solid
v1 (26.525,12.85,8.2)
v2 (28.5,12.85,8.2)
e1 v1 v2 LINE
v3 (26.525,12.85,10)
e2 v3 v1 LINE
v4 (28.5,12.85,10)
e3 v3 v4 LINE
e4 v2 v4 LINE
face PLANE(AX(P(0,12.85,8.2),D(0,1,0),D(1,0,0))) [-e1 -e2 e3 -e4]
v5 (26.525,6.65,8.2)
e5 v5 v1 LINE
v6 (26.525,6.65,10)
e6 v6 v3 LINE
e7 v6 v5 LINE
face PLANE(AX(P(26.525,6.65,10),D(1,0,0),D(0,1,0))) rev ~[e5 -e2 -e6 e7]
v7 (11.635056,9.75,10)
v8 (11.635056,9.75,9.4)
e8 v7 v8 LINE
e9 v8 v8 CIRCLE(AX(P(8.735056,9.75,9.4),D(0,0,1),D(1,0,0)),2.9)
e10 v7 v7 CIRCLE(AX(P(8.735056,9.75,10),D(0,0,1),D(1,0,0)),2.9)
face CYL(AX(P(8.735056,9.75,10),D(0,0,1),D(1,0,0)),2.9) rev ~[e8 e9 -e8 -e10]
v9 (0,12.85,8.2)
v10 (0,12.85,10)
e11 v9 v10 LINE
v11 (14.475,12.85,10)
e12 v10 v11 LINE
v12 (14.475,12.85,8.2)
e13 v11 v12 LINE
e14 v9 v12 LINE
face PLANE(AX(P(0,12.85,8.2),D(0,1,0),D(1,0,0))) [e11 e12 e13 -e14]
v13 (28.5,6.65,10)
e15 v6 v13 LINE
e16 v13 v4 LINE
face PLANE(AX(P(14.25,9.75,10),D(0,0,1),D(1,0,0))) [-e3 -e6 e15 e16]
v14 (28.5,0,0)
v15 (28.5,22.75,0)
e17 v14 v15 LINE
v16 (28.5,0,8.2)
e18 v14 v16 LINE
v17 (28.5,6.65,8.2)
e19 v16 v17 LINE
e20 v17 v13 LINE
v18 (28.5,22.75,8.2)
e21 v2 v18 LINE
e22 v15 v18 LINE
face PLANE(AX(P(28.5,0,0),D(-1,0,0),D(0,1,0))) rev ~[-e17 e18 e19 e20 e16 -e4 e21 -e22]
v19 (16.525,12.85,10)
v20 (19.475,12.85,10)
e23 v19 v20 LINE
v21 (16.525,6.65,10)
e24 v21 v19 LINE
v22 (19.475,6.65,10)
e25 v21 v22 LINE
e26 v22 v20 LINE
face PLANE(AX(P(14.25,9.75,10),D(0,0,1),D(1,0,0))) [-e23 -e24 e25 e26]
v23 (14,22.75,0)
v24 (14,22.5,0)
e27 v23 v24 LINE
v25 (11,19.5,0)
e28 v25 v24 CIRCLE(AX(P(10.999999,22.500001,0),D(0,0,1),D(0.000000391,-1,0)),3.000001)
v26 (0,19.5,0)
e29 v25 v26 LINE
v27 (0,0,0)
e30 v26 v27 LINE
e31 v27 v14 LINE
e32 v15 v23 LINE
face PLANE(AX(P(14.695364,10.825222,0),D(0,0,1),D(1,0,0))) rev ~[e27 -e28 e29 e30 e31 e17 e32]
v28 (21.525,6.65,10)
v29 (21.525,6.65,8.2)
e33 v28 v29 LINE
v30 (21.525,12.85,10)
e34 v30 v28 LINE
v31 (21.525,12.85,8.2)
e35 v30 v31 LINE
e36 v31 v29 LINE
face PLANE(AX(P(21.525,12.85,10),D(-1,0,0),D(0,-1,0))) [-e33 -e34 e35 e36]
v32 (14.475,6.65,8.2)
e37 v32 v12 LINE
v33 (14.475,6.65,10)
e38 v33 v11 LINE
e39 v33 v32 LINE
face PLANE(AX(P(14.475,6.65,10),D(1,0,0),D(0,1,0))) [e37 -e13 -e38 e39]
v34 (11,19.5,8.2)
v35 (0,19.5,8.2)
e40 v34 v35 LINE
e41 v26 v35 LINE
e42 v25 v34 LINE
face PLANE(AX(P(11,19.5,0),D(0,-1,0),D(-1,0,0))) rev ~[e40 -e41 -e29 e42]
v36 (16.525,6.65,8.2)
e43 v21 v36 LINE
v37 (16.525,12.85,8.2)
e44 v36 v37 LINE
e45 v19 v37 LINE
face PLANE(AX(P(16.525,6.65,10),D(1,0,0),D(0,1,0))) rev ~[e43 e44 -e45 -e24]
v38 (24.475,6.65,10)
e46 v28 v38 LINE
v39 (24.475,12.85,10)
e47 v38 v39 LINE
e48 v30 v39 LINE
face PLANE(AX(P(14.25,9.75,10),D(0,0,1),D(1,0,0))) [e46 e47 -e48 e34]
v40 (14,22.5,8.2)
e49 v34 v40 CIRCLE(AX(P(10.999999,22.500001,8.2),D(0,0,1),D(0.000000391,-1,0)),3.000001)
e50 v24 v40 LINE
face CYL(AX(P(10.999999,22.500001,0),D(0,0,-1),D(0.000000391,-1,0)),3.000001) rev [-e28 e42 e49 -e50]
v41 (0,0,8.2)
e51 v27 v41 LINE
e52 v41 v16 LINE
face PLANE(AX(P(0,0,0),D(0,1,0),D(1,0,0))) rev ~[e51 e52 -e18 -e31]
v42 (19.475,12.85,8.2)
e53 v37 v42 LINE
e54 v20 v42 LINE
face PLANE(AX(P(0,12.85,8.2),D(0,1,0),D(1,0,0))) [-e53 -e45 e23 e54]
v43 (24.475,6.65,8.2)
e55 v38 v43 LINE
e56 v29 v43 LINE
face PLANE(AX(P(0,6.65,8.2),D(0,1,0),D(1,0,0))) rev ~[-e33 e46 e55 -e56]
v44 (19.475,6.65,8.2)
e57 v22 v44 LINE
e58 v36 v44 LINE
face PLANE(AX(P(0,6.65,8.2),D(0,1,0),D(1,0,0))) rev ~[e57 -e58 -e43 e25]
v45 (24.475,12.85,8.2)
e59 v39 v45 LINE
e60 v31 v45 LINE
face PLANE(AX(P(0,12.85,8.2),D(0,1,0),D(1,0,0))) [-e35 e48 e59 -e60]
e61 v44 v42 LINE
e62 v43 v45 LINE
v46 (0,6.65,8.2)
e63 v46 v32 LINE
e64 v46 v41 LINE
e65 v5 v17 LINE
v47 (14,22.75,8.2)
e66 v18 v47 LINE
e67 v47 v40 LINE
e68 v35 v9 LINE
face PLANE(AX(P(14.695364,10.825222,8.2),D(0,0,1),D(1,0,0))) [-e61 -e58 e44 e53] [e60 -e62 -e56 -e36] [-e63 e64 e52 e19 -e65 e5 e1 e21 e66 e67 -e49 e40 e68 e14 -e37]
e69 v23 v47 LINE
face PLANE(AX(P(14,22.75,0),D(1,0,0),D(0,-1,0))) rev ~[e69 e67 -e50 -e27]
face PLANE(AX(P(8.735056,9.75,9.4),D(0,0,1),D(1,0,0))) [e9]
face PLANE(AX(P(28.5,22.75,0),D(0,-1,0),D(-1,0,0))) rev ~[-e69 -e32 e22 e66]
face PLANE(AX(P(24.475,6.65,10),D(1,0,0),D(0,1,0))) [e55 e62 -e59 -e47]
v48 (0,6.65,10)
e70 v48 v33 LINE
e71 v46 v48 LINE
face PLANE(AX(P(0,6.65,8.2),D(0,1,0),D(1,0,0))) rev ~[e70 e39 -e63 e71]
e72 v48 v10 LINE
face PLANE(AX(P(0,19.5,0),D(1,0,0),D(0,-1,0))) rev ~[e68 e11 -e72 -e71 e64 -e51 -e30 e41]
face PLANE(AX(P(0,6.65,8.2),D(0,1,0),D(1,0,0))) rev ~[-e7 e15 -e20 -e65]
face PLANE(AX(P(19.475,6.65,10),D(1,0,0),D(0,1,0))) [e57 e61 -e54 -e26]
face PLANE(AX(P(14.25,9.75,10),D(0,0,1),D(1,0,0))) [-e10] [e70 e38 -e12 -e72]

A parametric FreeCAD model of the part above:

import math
import FreeCAD as App
import Part
import Sketcher
from FreeCAD import Vector
Q = App.Units.Quantity

doc = App.newDocument("Part")
params = doc.addObject("Spreadsheet::Sheet", "Params")
for row, (alias, value) in enumerate([
    ("sketch1_radius", "3.000001 mm"),
    ("sketch1_width", "11 mm"),
    ("sketch1_width2", "28.5 mm"),
    ("sketch1_height", "19.5 mm"),
    ("sketch1_height2", "22.75 mm"),
    ("pad1_length", "8.2 mm"),
    ("sketch2_width", "28.5 mm"),
    ("sketch2_height", "6.2 mm"),
    ("pad2_length", "1.8 mm"),
    ("sketch3_diameter", "5.8 mm"),
    ("pocket1_length", "0.6 mm"),
    ("sketch4_height", "6.2 mm"),
    ("sketch4_width", "2.05 mm"),
    ("pocket2_length", "1.8 mm"),
], start=1):
    params.set(f"A{row}", alias)
    params.set(f"B{row}", "=" + value)
    params.setAlias(f"B{row}", alias)

body = doc.addObject("PartDesign::Body", "Body")

# Sketch on XY plane
sketch1 = body.newObject("Sketcher::SketchObject", "Sketch")
sketch1.AttachmentSupport = (doc.getObject("XY_Plane"), [""])
sketch1.MapMode = "FlatFace"
sketch1.addGeometry([
    Part.LineSegment(Vector(0, 0, 0), Vector(28.5, 0, 0)),  # 0
    Part.LineSegment(Vector(28.5, 0, 0), Vector(28.5, 22.75, 0)),  # 1
    Part.LineSegment(Vector(28.5, 22.75, 0), Vector(14, 22.75, 0)),  # 2
    Part.LineSegment(Vector(14, 22.75, 0), Vector(14, 22.5, 0)),  # 3
    Part.ArcOfCircle(Part.Circle(Vector(11, 22.5, 0), Vector(0, 0, 1), 3), math.radians(-90), math.radians(0)),  # 4
    Part.LineSegment(Vector(11, 19.5, 0), Vector(0, 19.5, 0)),  # 5
    Part.LineSegment(Vector(0, 19.5, 0), Vector(0, 0, 0)),  # 6
], False)
sketch1.addConstraint([
    Sketcher.Constraint("Coincident", 0, 2, 1, 1),
    Sketcher.Constraint("Coincident", 1, 2, 2, 1),
    Sketcher.Constraint("Coincident", 2, 2, 3, 1),
    Sketcher.Constraint("Tangent", 3, 2, 4, 2),
    Sketcher.Constraint("Tangent", 4, 1, 5, 1),
    Sketcher.Constraint("Coincident", 5, 2, 6, 1),
    Sketcher.Constraint("Coincident", 6, 2, 0, 1),
    Sketcher.Constraint("Horizontal", 0),
    Sketcher.Constraint("Vertical", 1),
    Sketcher.Constraint("Horizontal", 2),
    Sketcher.Constraint("Vertical", 3),
    Sketcher.Constraint("Horizontal", 5),
    Sketcher.Constraint("Vertical", 6),
    Sketcher.Constraint("Coincident", 6, 2, -1, 1),
    Sketcher.Constraint("Radius", 4, Q("3.000001 mm")),
    Sketcher.Constraint("DistanceX", 5, 2, 5, 1, Q("11 mm")),
    Sketcher.Constraint("DistanceX", 0, 1, 0, 2, Q("28.5 mm")),
    Sketcher.Constraint("DistanceY", 6, 2, 6, 1, Q("19.5 mm")),
    Sketcher.Constraint("DistanceY", 1, 1, 1, 2, Q("22.75 mm")),
])
sketch1.setExpression("Constraints[14]", "Params.sketch1_radius")
sketch1.setExpression("Constraints[15]", "Params.sketch1_width")
sketch1.setExpression("Constraints[16]", "Params.sketch1_width2")
sketch1.setExpression("Constraints[17]", "Params.sketch1_height")
sketch1.setExpression("Constraints[18]", "Params.sketch1_height2")
pad1 = body.newObject("PartDesign::Pad", "Pad")
pad1.Profile = sketch1
pad1.setExpression("Length", "Params.pad1_length")

# Sketch on XY plane
sketch2 = body.newObject("Sketcher::SketchObject", "Sketch001")
sketch2.AttachmentSupport = (doc.getObject("XY_Plane"), [""])
sketch2.MapMode = "FlatFace"
sketch2.AttachmentOffset = App.Placement(Vector(0, 0, 8.2), App.Rotation())
sketch2.addGeometry([
    Part.LineSegment(Vector(0, 13, 0), Vector(0, 7, 0)),
    Part.LineSegment(Vector(0, 7, 0), Vector(28, 7, 0)),
    Part.LineSegment(Vector(28, 7, 0), Vector(28, 13, 0)),
    Part.LineSegment(Vector(28, 13, 0), Vector(0, 13, 0)),
], False)
sketch2.addConstraint([
    Sketcher.Constraint("Coincident", 0, 2, 1, 1),
    Sketcher.Constraint("Coincident", 1, 2, 2, 1),
    Sketcher.Constraint("Coincident", 2, 2, 3, 1),
    Sketcher.Constraint("Coincident", 3, 2, 0, 1),
    Sketcher.Constraint("Vertical", 0),
    Sketcher.Constraint("Horizontal", 1),
    Sketcher.Constraint("Vertical", 2),
    Sketcher.Constraint("Horizontal", 3),
    Sketcher.Constraint("PointOnObject", 0, 2, -2),
    Sketcher.Constraint("DistanceX", 1, 1, 1, 2, Q("28.5 mm")),
    Sketcher.Constraint("DistanceY", 0, 2, 0, 1, Q("6.2 mm")),
    Sketcher.Constraint("DistanceY", -1, 1, 0, 2, Q("6.65 mm")),
])
sketch2.setExpression("Constraints[9]", "Params.sketch2_width")
sketch2.setExpression("Constraints[10]", "Params.sketch2_height")
pad2 = body.newObject("PartDesign::Pad", "Pad001")
pad2.Profile = sketch2
pad2.setExpression("Length", "Params.pad2_length")

# Sketch on XY plane
sketch3 = body.newObject("Sketcher::SketchObject", "Sketch002")
sketch3.AttachmentSupport = (doc.getObject("XY_Plane"), [""])
sketch3.MapMode = "FlatFace"
sketch3.AttachmentOffset = App.Placement(Vector(0, 0, 10), App.Rotation())
sketch3.addGeometry(Part.Circle(Vector(8.7, 9.8, 0), Vector(0, 0, 1), 2.9), False)
sketch3.addConstraint([
    Sketcher.Constraint("Diameter", 0, Q("5.8 mm")),
    Sketcher.Constraint("DistanceY", -1, 1, 0, 3, Q("9.75 mm")),
    Sketcher.Constraint("DistanceX", -1, 1, 0, 3, Q("8.735056 mm")),
])
sketch3.setExpression("Constraints[0]", "Params.sketch3_diameter")
pocket1 = body.newObject("PartDesign::Pocket", "Pocket")
pocket1.Profile = sketch3
pocket1.setExpression("Length", "Params.pocket1_length")

# Sketch on XY plane
sketch4 = body.newObject("Sketcher::SketchObject", "Sketch003")
sketch4.AttachmentSupport = (doc.getObject("XY_Plane"), [""])
sketch4.MapMode = "FlatFace"
sketch4.AttachmentOffset = App.Placement(Vector(0, 0, 10), App.Rotation())
sketch4.addGeometry([
    Part.LineSegment(Vector(14.5, 12.8, 0), Vector(14.5, 6.7, 0)),  # 0
    Part.LineSegment(Vector(14.5, 6.7, 0), Vector(16.5, 6.7, 0)),  # 1
    Part.LineSegment(Vector(16.5, 6.7, 0), Vector(16.5, 12.8, 0)),  # 2
    Part.LineSegment(Vector(16.5, 12.8, 0), Vector(14.5, 12.8, 0)),  # 3
    Part.LineSegment(Vector(21.5, 6.7, 0), Vector(21.5, 12.8, 0)),  # 4
    Part.LineSegment(Vector(21.5, 12.8, 0), Vector(19.5, 12.8, 0)),  # 5
    Part.LineSegment(Vector(19.5, 12.8, 0), Vector(19.5, 6.7, 0)),  # 6
    Part.LineSegment(Vector(19.5, 6.7, 0), Vector(21.5, 6.7, 0)),  # 7
    Part.LineSegment(Vector(24.5, 12.8, 0), Vector(24.5, 6.7, 0)),  # 8
    Part.LineSegment(Vector(24.5, 6.7, 0), Vector(26.5, 6.7, 0)),  # 9
    Part.LineSegment(Vector(26.5, 6.7, 0), Vector(26.5, 12.8, 0)),  # 10
    Part.LineSegment(Vector(26.5, 12.8, 0), Vector(24.5, 12.8, 0)),  # 11
], False)
sketch4.addConstraint([
    Sketcher.Constraint("Coincident", 0, 2, 1, 1),
    Sketcher.Constraint("Coincident", 1, 2, 2, 1),
    Sketcher.Constraint("Coincident", 2, 2, 3, 1),
    Sketcher.Constraint("Coincident", 3, 2, 0, 1),
    Sketcher.Constraint("Coincident", 4, 2, 5, 1),
    Sketcher.Constraint("Coincident", 5, 2, 6, 1),
    Sketcher.Constraint("Coincident", 6, 2, 7, 1),
    Sketcher.Constraint("Coincident", 7, 2, 4, 1),
    Sketcher.Constraint("Coincident", 8, 2, 9, 1),
    Sketcher.Constraint("Coincident", 9, 2, 10, 1),
    Sketcher.Constraint("Coincident", 10, 2, 11, 1),
    Sketcher.Constraint("Coincident", 11, 2, 8, 1),
    Sketcher.Constraint("Vertical", 0),
    Sketcher.Constraint("Horizontal", 1),
    Sketcher.Constraint("Vertical", 2),
    Sketcher.Constraint("Horizontal", 3),
    Sketcher.Constraint("Vertical", 4),
    Sketcher.Constraint("Horizontal", 5),
    Sketcher.Constraint("Vertical", 6),
    Sketcher.Constraint("Horizontal", 7),
    Sketcher.Constraint("Vertical", 8),
    Sketcher.Constraint("Horizontal", 9),
    Sketcher.Constraint("Vertical", 10),
    Sketcher.Constraint("Horizontal", 11),
    Sketcher.Constraint("Horizontal", 3, 2, 4, 2),
    Sketcher.Constraint("Horizontal", 1, 2, 6, 2),
    Sketcher.Constraint("Horizontal", 7, 2, 8, 2),
    Sketcher.Constraint("Horizontal", 5, 2, 10, 2),
    Sketcher.Constraint("Equal", 3, 5),
    Sketcher.Constraint("Equal", 7, 9),
    Sketcher.Constraint("DistanceY", 0, 2, 0, 1, Q("6.2 mm")),
    Sketcher.Constraint("DistanceX", 2, 2, 4, 2, Q("5 mm")),
    Sketcher.Constraint("DistanceX", 6, 2, 8, 2, Q("5 mm")),
    Sketcher.Constraint("DistanceX", 1, 1, 1, 2, Q("2.05 mm")),
    Sketcher.Constraint("DistanceY", -1, 1, 0, 2, Q("6.65 mm")),
    Sketcher.Constraint("DistanceX", -1, 1, 0, 2, Q("14.475 mm")),
])
sketch4.setExpression("Constraints[30]", "Params.sketch4_height")
sketch4.setExpression("Constraints[33]", "Params.sketch4_width")
pocket2 = body.newObject("PartDesign::Pocket", "Pocket001")
pocket2.Profile = sketch4
pocket2.setExpression("Length", "Params.pocket2_length")

doc.recompute()
